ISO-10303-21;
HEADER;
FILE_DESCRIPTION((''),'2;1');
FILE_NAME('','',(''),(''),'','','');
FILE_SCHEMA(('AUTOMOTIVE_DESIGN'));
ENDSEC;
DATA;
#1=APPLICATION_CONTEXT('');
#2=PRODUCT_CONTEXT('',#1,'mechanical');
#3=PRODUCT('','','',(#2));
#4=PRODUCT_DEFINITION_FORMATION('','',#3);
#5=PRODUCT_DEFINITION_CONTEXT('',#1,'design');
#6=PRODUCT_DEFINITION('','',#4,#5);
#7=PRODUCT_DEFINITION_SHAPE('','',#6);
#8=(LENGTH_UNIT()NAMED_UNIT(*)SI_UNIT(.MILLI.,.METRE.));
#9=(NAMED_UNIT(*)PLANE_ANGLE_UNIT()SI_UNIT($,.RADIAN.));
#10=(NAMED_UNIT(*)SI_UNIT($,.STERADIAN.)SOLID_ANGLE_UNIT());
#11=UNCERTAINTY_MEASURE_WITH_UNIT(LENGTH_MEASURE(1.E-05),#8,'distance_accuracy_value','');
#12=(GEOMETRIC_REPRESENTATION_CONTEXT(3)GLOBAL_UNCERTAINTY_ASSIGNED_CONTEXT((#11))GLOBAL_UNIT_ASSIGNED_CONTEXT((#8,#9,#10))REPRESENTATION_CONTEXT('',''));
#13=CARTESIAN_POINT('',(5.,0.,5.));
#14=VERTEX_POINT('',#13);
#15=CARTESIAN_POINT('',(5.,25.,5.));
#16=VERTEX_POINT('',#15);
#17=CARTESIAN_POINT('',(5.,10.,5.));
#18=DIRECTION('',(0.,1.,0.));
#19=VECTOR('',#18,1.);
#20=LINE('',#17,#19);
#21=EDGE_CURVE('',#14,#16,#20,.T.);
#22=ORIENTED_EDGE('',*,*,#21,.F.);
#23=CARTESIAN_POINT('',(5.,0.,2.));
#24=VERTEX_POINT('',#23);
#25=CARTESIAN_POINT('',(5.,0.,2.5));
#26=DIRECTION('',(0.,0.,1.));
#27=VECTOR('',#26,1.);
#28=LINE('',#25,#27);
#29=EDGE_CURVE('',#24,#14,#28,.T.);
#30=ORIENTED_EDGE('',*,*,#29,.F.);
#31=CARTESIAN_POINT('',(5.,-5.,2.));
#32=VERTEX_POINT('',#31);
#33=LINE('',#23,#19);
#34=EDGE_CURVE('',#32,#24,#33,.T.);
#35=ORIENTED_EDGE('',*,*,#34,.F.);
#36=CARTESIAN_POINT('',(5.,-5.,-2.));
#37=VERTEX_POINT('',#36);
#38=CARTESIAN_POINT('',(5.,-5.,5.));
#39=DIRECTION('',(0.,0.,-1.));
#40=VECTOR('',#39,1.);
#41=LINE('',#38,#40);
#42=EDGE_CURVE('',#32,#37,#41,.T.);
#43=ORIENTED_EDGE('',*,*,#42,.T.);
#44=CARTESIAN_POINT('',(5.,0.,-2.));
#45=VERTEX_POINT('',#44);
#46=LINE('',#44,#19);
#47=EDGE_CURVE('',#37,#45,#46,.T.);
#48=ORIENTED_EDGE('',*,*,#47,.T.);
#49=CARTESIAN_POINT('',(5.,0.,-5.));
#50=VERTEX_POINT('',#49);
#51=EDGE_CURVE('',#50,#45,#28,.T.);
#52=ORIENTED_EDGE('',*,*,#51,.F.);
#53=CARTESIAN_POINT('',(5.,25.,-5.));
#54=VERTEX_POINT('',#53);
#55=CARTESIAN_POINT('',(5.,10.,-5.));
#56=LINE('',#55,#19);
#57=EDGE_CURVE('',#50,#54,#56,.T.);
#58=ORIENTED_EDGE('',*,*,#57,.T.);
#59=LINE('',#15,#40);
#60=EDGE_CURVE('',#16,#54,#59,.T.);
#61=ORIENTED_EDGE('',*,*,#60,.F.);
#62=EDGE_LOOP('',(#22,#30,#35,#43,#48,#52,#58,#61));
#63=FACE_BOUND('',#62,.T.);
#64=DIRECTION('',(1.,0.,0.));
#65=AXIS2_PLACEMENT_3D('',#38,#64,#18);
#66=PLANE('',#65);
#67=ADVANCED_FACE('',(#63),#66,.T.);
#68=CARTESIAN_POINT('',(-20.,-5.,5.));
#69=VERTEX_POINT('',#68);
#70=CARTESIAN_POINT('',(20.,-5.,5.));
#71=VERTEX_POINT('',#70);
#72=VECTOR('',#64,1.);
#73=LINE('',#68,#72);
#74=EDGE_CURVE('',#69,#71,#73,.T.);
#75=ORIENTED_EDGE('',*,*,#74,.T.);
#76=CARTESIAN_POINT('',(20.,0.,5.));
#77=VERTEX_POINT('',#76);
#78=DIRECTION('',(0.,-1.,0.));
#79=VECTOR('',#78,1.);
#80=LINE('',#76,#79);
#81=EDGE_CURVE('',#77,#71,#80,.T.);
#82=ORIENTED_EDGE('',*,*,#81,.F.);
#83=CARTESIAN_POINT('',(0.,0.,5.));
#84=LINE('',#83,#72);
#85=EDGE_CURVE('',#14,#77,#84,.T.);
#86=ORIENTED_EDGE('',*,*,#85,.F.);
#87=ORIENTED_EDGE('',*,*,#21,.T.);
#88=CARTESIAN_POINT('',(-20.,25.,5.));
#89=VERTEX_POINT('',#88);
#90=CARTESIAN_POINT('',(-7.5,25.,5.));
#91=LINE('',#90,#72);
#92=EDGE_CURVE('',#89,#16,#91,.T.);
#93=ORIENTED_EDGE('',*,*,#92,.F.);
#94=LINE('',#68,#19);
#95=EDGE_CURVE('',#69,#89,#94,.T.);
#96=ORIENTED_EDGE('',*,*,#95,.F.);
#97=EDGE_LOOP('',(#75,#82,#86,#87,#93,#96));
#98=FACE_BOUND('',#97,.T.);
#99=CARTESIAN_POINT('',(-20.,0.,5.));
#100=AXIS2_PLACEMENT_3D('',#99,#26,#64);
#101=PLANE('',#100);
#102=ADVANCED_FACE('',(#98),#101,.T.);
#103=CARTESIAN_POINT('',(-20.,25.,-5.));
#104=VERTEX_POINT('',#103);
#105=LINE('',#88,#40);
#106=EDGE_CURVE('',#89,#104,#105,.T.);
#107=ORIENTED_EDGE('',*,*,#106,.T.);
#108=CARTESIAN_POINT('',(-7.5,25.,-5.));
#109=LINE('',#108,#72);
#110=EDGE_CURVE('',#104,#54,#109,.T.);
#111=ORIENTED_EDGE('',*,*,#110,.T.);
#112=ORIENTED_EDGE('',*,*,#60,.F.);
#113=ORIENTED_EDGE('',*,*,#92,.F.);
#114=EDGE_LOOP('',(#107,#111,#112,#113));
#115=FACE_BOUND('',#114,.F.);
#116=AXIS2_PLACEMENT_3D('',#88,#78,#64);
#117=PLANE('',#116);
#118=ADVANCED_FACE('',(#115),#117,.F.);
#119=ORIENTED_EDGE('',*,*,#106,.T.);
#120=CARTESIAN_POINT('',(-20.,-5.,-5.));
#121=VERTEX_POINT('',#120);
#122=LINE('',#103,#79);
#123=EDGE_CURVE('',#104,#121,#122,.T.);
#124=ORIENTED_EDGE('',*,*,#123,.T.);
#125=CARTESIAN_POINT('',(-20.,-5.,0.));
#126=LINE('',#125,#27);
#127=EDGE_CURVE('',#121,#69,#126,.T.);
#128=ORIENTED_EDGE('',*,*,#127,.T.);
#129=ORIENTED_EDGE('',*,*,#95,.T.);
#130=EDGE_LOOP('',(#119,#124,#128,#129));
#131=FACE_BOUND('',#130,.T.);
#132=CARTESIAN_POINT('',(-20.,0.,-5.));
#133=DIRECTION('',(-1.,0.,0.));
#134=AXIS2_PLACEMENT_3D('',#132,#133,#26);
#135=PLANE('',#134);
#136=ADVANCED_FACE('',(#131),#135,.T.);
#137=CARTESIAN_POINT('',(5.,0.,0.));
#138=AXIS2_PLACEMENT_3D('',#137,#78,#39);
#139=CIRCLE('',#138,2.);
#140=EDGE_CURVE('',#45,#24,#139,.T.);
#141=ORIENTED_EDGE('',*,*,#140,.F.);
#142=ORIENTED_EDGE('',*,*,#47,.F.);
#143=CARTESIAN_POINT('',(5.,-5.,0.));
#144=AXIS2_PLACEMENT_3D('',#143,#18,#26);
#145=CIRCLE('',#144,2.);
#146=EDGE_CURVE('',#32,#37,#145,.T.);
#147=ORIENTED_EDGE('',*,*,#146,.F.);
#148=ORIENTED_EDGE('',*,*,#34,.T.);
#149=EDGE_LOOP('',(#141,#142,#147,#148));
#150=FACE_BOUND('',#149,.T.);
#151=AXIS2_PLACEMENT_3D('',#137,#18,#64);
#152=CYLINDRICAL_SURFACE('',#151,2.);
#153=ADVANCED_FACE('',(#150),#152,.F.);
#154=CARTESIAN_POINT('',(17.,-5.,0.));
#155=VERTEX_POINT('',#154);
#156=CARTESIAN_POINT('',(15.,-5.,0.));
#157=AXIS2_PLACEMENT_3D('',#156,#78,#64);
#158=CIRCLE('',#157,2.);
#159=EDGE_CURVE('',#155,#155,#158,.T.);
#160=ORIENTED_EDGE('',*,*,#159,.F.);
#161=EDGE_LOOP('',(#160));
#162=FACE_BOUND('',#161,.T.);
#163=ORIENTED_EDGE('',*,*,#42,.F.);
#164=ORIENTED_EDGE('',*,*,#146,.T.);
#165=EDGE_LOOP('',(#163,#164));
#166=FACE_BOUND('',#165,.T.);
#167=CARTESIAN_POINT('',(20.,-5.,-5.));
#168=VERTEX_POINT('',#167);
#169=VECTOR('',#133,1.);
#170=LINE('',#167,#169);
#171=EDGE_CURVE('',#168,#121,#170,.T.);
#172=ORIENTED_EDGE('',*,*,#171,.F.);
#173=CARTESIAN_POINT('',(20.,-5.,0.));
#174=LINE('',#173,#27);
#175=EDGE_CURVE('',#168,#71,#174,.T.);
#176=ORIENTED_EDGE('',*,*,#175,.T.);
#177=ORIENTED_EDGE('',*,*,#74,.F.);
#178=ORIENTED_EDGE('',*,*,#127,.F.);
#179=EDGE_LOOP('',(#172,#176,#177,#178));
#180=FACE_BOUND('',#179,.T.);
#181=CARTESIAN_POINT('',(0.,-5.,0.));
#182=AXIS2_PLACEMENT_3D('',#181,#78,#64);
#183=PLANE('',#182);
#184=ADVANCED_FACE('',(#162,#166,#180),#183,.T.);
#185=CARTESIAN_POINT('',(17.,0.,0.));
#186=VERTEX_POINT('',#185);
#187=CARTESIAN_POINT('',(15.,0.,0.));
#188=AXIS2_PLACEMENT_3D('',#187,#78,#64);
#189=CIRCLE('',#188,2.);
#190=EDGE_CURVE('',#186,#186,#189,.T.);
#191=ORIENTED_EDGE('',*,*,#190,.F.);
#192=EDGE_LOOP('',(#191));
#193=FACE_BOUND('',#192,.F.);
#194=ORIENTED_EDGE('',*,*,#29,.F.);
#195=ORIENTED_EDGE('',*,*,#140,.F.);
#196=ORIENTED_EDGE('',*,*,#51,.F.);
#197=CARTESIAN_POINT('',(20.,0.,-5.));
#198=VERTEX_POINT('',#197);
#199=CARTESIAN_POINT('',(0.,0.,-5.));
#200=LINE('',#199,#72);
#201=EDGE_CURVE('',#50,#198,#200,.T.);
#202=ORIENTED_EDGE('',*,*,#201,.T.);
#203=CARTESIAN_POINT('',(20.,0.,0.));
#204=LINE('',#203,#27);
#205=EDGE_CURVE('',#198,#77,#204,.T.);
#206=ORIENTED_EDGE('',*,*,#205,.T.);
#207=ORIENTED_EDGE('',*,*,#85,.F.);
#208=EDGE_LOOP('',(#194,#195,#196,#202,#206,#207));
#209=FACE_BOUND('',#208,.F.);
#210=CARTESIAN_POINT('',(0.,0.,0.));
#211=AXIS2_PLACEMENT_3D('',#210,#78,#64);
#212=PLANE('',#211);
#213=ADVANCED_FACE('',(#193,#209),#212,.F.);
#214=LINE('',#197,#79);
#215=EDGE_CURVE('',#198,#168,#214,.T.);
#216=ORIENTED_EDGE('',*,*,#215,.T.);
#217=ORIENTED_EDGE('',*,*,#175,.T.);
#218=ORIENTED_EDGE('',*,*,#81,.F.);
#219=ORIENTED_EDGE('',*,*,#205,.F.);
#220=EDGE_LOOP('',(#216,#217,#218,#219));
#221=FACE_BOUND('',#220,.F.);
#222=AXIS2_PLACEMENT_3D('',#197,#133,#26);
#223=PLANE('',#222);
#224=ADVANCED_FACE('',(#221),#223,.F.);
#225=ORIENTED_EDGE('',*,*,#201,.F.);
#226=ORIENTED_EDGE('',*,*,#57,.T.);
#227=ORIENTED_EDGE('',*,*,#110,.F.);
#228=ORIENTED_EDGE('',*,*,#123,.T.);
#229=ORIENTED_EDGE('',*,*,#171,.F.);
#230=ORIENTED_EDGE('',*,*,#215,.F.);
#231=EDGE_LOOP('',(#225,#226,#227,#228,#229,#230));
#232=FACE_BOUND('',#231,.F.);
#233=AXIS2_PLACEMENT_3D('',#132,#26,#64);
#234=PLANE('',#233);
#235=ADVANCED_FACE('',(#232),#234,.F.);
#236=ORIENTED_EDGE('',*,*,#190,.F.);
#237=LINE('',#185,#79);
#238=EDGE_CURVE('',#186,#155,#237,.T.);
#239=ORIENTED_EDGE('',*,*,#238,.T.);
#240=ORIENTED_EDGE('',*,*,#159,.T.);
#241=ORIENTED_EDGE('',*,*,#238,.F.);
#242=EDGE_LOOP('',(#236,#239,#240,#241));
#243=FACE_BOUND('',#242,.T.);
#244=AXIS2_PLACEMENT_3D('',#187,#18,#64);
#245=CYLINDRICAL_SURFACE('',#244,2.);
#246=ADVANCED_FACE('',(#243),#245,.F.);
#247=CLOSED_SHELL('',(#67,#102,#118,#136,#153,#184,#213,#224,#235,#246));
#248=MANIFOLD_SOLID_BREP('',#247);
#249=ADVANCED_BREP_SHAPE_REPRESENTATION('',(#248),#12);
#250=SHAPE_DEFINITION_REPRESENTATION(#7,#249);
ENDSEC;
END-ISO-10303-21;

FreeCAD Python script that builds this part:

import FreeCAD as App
import Part
import Sketcher

V = App.Vector
Q = App.Units.Quantity


def add_polygon(sketch, points):
    """Adds a closed chain of lines whose ends are joined by coincident constraints."""
    first, n = sketch.GeometryCount, len(points)
    for a, b in zip(points, points[1:] + points[:1]):
        sketch.addGeometry(Part.LineSegment(App.Vector(*a, 0), App.Vector(*b, 0)), False)
    for i in range(n):
        sketch.addConstraint(Sketcher.Constraint("Coincident", first + i, 2, first + (i + 1) % n, 1))

doc = App.newDocument("Part")
body = doc.addObject("PartDesign::Body", "Body")

# Sketch on XZ plane
sketch1 = body.newObject("Sketcher::SketchObject", "Sketch")
sketch1.AttachmentSupport = (doc.getObject("XZ_Plane"), [""])
sketch1.MapMode = "FlatFace"
add_polygon(sketch1, [(-20, 5), (-20, -5), (20, -5), (20, 5)])  # lines 0-3
sketch1.addGeometry(Part.Circle(V(5, 0, 0), V(0, 0, 1), 2), False)  # 4
sketch1.addGeometry(Part.Circle(V(15, 0, 0), V(0, 0, 1), 2), False)  # 5
sketch1.addConstraint([
    Sketcher.Constraint("Vertical", 0),
    Sketcher.Constraint("Horizontal", 1),
    Sketcher.Constraint("Vertical", 2),
    Sketcher.Constraint("Horizontal", 3),
    Sketcher.Constraint("Equal", 4, 5),
    Sketcher.Constraint("Symmetric", 0, 2, 2, 2, -1, 1),
    Sketcher.Constraint("PointOnObject", 4, 3, -1),
    Sketcher.Constraint("PointOnObject", 5, 3, -1),
    Sketcher.Constraint("Diameter", 4, Q("4 mm")),
    Sketcher.Constraint("DistanceX", 1, 1, 1, 2, Q("40 mm")),
    Sketcher.Constraint("DistanceY", 0, 2, 0, 1, Q("10 mm")),
    Sketcher.Constraint("DistanceX", -1, 1, 4, 3, Q("5 mm")),
    Sketcher.Constraint("DistanceX", -1, 1, 5, 3, Q("15 mm")),
])
pad1 = body.newObject("PartDesign::Pad", "Pad")
pad1.Profile = sketch1
pad1.Length = 5

# Sketch on XY plane
sketch2 = body.newObject("Sketcher::SketchObject", "Sketch001")
sketch2.AttachmentSupport = (doc.getObject("XY_Plane"), [""])
sketch2.MapMode = "FlatFace"
sketch2.AttachmentOffset = App.Placement(V(0, 0, 5), App.Rotation())
add_polygon(sketch2, [(-20, 25), (-20, -5), (5, -5), (5, 25)])  # lines 0-3
sketch2.addConstraint([
    Sketcher.Constraint("Vertical", 0),
    Sketcher.Constraint("Horizontal", 1),
    Sketcher.Constraint("Vertical", 2),
    Sketcher.Constraint("Horizontal", 3),
    Sketcher.Constraint("DistanceX", 1, 1, 1, 2, Q("25 mm")),
    Sketcher.Constraint("DistanceY", 0, 2, 0, 1, Q("30 mm")),
    Sketcher.Constraint("DistanceX", 0, 2, -1, 1, Q("20 mm")),
    Sketcher.Constraint("DistanceY", 0, 2, -1, 1, Q("5 mm")),
])
pad2 = body.newObject("PartDesign::Pad", "Pad001")
pad2.Profile = sketch2
pad2.Length = 10
pad2.Reversed = True

doc.recompute()
